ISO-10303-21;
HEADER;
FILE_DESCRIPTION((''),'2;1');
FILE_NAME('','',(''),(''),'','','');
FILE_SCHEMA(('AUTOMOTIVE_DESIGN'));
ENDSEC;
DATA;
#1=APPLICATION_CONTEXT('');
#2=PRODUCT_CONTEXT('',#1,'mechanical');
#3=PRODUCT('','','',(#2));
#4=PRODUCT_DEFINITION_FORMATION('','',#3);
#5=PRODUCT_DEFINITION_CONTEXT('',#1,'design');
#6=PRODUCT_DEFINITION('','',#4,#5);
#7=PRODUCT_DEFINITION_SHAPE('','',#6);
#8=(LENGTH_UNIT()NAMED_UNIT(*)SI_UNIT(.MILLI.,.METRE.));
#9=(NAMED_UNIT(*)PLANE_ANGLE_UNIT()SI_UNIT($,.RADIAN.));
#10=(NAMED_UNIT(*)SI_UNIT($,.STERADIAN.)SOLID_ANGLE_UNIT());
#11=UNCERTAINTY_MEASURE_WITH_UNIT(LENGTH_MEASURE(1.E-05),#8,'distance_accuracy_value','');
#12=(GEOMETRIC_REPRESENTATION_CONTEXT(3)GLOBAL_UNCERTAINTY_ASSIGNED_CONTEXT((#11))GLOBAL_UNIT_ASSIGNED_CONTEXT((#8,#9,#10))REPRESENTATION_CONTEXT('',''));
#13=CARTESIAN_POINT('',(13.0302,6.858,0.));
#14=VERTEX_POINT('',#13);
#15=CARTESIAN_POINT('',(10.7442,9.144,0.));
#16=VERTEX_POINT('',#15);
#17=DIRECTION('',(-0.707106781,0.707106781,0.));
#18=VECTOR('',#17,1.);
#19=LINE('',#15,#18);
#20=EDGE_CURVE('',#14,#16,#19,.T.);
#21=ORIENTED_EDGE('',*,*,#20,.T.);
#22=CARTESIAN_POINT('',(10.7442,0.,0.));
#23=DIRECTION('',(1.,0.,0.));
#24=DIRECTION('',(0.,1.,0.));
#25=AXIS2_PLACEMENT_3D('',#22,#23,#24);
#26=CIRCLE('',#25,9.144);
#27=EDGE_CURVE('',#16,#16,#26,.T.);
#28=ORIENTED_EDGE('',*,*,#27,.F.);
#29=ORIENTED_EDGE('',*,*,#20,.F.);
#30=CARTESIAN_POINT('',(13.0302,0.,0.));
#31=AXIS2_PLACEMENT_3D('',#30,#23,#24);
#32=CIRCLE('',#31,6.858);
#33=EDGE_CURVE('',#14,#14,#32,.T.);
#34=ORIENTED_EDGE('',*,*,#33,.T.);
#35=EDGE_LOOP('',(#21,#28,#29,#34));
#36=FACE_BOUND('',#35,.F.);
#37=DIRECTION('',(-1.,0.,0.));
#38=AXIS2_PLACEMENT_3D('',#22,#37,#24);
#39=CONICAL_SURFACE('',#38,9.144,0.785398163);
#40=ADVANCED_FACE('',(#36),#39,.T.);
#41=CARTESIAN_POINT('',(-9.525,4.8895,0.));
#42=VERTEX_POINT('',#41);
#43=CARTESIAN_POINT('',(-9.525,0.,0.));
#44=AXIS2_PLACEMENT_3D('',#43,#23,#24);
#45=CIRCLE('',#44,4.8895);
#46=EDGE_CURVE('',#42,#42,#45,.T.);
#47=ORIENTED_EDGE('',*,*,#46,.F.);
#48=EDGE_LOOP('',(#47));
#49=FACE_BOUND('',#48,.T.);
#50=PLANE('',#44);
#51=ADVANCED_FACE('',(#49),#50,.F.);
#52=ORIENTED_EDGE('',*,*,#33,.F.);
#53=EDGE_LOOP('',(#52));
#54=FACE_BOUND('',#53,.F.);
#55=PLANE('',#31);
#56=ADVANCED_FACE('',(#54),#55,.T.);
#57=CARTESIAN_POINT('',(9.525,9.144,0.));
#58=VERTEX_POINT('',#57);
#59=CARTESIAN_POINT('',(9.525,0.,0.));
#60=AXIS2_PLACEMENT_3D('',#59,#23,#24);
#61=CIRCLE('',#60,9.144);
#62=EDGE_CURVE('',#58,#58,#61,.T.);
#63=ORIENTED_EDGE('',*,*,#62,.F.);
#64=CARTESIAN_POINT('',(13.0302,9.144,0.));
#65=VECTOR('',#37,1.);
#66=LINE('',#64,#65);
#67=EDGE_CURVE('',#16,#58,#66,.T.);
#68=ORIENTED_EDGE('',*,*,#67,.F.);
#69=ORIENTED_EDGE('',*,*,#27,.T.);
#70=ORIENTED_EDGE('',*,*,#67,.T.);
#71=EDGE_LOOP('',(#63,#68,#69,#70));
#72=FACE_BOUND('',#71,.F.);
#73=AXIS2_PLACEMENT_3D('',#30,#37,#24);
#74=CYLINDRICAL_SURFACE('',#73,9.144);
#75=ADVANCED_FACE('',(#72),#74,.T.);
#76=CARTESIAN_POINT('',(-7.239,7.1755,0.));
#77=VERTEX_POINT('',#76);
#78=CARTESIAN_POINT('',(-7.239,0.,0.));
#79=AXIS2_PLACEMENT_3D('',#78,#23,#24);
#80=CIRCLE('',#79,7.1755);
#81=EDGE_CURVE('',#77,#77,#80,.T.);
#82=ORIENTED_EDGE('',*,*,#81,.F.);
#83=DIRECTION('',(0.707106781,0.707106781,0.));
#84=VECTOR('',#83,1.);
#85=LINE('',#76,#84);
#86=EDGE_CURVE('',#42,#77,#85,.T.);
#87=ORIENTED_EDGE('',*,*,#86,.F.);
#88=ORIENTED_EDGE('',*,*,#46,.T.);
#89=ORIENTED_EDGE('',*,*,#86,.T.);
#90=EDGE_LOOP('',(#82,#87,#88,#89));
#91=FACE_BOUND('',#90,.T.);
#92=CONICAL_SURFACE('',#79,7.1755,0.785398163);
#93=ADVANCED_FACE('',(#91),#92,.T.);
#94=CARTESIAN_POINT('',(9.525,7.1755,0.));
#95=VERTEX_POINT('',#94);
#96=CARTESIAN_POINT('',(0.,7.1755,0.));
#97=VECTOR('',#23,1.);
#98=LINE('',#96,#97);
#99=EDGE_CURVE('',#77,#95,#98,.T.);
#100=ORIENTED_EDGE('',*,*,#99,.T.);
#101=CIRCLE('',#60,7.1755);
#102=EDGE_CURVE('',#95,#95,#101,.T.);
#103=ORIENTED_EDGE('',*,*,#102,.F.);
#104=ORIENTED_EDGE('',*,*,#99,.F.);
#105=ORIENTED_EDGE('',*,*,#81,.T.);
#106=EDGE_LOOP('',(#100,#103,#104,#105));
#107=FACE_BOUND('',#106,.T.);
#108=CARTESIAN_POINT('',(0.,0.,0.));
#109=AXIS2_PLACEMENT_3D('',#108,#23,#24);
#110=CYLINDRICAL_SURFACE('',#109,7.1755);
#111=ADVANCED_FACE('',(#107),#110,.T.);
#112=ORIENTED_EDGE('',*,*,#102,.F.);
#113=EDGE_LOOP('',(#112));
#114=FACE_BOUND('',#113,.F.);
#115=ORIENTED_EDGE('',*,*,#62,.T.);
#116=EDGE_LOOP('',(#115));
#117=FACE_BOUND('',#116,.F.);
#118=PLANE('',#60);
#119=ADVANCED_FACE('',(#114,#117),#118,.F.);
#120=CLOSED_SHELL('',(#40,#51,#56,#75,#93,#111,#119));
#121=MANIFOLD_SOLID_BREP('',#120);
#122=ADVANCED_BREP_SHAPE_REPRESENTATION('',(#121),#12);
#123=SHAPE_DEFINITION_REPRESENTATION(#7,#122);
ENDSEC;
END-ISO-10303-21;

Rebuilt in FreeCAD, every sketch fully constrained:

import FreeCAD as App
import Part
import Sketcher
Q = App.Units.Quantity


def edges_at(feature, points):
    """Names of the edges that pass closest to the given points."""
    edges = feature.Shape.Edges
    near = lambda p: min(range(len(edges)), key=lambda i: edges[i].distToShape(Part.Vertex(*p))[0])
    return sorted({f"Edge{near(p) + 1}" for p in points})


def add_polygon(sketch, points):
    """Adds a closed chain of lines whose ends are joined by coincident constraints."""
    first, n = sketch.GeometryCount, len(points)
    for a, b in zip(points, points[1:] + points[:1]):
        sketch.addGeometry(Part.LineSegment(App.Vector(*a, 0), App.Vector(*b, 0)), False)
    for i in range(n):
        sketch.addConstraint(Sketcher.Constraint("Coincident", first + i, 2, first + (i + 1) % n, 1))

doc = App.newDocument("Part")
params = doc.addObject("Spreadsheet::Sheet", "Params")
for row, (alias, value) in enumerate([
    ("sketch1_width", "0.75 in"),
    ("sketch1_height", "0.36 in"),
    ("sketch1_width2", "0.888 in"),
    ("revolution_angle", "360 deg"),
    ("chamfer_size", "0.09 in"),
], start=1):
    params.set(f"A{row}", alias)
    params.set(f"B{row}", "=" + value)
    params.setAlias(f"B{row}", alias)

body = doc.addObject("PartDesign::Body", "Body")

# Sketch on XY plane
sketch1 = doc.addObject("Sketcher::SketchObject", "Sketch")
body.addObject(sketch1)
sketch1.AttachmentSupport = (doc.XY_Plane, [""])
sketch1.MapMode = "FlatFace"
add_polygon(sketch1, [(-9.5, 7.2), (-9.5, 0), (13, 0), (13, 9.1), (9.5, 9.1), (9.5, 7.2)])  # lines 0-5
sketch1.addConstraint([
    Sketcher.Constraint("Vertical", 0),
    Sketcher.Constraint("Horizontal", 1),
    Sketcher.Constraint("Vertical", 2),
    Sketcher.Constraint("Horizontal", 3),
    Sketcher.Constraint("Vertical", 4),
    Sketcher.Constraint("Horizontal", 5),
    Sketcher.Constraint("PointOnObject", 0, 2, -1),
    Sketcher.Constraint("DistanceX", 5, 2, 5, 1, Q("0.75 in")),
    Sketcher.Constraint("DistanceY", 2, 1, 2, 2, Q("0.36 in")),
    Sketcher.Constraint("DistanceX", 1, 1, 1, 2, Q("0.888 in")),
    Sketcher.Constraint("DistanceY", 0, 2, 0, 1, Q("0.2825 in")),
    Sketcher.Constraint("DistanceX", 0, 2, -1, 1, Q("0.375 in")),
])
sketch1.setExpression("Constraints[13]", "Params.sketch1_width")
sketch1.setExpression("Constraints[14]", "Params.sketch1_height")
sketch1.setExpression("Constraints[15]", "Params.sketch1_width2")
revolution = doc.addObject("PartDesign::Revolution", "Revolution")
body.addObject(revolution)
revolution.Profile = sketch1
revolution.ReferenceAxis = (sketch1, ["H_Axis"])
revolution.setExpression("Angle", "Params.revolution_angle")
doc.recompute()

chamfer = doc.addObject("PartDesign::Chamfer", "Chamfer")
body.addObject(chamfer)
chamfer.Base = (revolution, edges_at(revolution, [(13.03, -9.144, 0), (-9.525, -7.176, 0)]))
chamfer.setExpression("Size", "Params.chamfer_size")

doc.recompute()
